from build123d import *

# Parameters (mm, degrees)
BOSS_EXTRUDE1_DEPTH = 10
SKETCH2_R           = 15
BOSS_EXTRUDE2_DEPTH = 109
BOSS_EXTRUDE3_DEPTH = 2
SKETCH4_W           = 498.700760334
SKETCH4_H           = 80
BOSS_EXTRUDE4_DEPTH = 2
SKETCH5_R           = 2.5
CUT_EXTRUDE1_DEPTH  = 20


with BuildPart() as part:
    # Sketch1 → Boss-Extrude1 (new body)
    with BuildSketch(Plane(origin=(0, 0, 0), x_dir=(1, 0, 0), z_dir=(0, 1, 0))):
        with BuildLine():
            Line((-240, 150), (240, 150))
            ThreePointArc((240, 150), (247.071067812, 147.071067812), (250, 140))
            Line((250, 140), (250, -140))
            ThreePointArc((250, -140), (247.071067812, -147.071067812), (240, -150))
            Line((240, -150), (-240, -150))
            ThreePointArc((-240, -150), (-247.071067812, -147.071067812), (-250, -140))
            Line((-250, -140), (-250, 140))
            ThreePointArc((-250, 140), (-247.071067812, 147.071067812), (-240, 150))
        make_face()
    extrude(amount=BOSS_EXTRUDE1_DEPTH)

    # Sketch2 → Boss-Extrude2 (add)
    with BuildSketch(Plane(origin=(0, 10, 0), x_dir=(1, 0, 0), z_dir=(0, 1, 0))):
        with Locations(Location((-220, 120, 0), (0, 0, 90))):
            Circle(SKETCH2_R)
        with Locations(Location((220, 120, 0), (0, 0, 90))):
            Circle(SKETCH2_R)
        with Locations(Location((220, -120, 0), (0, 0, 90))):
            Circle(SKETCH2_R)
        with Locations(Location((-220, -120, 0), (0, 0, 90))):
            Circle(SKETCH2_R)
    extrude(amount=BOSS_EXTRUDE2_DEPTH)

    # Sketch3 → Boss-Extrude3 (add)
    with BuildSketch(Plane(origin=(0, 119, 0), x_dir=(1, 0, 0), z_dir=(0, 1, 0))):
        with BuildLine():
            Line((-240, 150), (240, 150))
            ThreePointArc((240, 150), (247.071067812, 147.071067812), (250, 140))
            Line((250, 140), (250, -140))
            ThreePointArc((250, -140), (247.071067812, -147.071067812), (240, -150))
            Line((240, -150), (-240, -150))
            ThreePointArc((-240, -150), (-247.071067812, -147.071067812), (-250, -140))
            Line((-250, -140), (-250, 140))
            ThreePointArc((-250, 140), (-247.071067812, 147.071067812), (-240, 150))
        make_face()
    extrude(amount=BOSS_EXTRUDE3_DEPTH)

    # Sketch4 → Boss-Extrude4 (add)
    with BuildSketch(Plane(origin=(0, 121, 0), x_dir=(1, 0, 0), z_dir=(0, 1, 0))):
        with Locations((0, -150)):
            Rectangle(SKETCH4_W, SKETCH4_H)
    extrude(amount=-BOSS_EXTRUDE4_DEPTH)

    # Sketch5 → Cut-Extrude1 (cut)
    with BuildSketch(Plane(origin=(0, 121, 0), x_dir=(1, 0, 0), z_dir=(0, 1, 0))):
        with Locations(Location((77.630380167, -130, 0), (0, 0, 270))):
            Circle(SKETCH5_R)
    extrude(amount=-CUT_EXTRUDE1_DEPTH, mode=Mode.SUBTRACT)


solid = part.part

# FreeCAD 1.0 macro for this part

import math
import FreeCAD as App
import Part
import Sketcher
from FreeCAD import Vector
Q = App.Units.Quantity

doc = App.newDocument("Part")
body = doc.addObject("PartDesign::Body", "Body")

sketch1 = body.newObject("Sketcher::SketchObject", "Sketch")
sketch1.AttachmentSupport = (doc.getObject("XZ_Plane"), [""])
sketch1.MapMode = "FlatFace"
sketch1.addGeometry([
    Part.LineSegment(Vector(240, -150, 0), Vector(-240, -150, 0)),
    Part.ArcOfCircle(Part.Circle(Vector(-240, -140, 0), Vector(0, 0, 1), 10), math.radians(180), math.radians(270)),
    Part.LineSegment(Vector(-250, -140, 0), Vector(-250, 140, 0)),
    Part.ArcOfCircle(Part.Circle(Vector(-240, 140, 0), Vector(0, 0, 1), 10), math.radians(90), math.radians(180)),
    Part.LineSegment(Vector(-240, 150, 0), Vector(240, 150, 0)),
    Part.ArcOfCircle(Part.Circle(Vector(240, 140, 0), Vector(0, 0, 1), 10), math.radians(0), math.radians(90)),
    Part.LineSegment(Vector(250, 140, 0), Vector(250, -140, 0)),
    Part.ArcOfCircle(Part.Circle(Vector(240, -140, 0), Vector(0, 0, 1), 10), math.radians(-90), math.radians(0)),
], False)
sketch1.addConstraint([
    Sketcher.Constraint("Tangent", 0, 2, 1, 2),
    Sketcher.Constraint("Tangent", 1, 1, 2, 1),
    Sketcher.Constraint("Tangent", 2, 2, 3, 2),
    Sketcher.Constraint("Tangent", 3, 1, 4, 1),
    Sketcher.Constraint("Tangent", 4, 2, 5, 2),
    Sketcher.Constraint("Tangent", 5, 1, 6, 1),
    Sketcher.Constraint("Tangent", 6, 2, 7, 2),
    Sketcher.Constraint("Tangent", 7, 1, 0, 1),
    Sketcher.Constraint("Horizontal", 0),
    Sketcher.Constraint("Vertical", 2),
    Sketcher.Constraint("Horizontal", 4),
    Sketcher.Constraint("Vertical", 6),
    Sketcher.Constraint("Equal", 1, 3),
    Sketcher.Constraint("Equal", 3, 5),
    Sketcher.Constraint("Equal", 5, 7),
    Sketcher.Constraint("Symmetric", 1, 3, 5, 3, -1, 1),
    Sketcher.Constraint("Radius", 1, Q("10 mm")),
    Sketcher.Constraint("DistanceX", 0, 2, 0, 1, Q("480 mm")),
    Sketcher.Constraint("DistanceY", 2, 1, 2, 2, Q("280 mm")),
])
pad1 = body.newObject("PartDesign::Pad", "Pad")
pad1.Profile = sketch1
pad1.Length = 10
pad1.Reversed = True

sketch2 = body.newObject("Sketcher::SketchObject", "Sketch001")
sketch2.AttachmentSupport = (doc.getObject("XZ_Plane"), [""])
sketch2.MapMode = "FlatFace"
sketch2.AttachmentOffset = App.Placement(Vector(0, 0, -10), App.Rotation())
sketch2.addGeometry([
    Part.Circle(Vector(-220, -120, 0), Vector(0, 0, 1), 15),
    Part.Circle(Vector(220, -120, 0), Vector(0, 0, 1), 15),
    Part.Circle(Vector(220, 120, 0), Vector(0, 0, 1), 15),
    Part.Circle(Vector(-220, 120, 0), Vector(0, 0, 1), 15),
], False)
sketch2.addConstraint([
    Sketcher.Constraint("Equal", 0, 1),
    Sketcher.Constraint("Equal", 1, 2),
    Sketcher.Constraint("Equal", 2, 3),
    Sketcher.Constraint("Symmetric", 0, 3, 2, 3, -1, 1),
    Sketcher.Constraint("Symmetric", 1, 3, 3, 3, -1, 1),
    Sketcher.Constraint("Symmetric", 0, 3, 1, 3, -2),
    Sketcher.Constraint("Diameter", 0, Q("30 mm")),
    Sketcher.Constraint("DistanceX", 0, 3, -1, 1, Q("220 mm")),
    Sketcher.Constraint("DistanceY", 0, 3, -1, 1, Q("120 mm")),
])
pad2 = body.newObject("PartDesign::Pad", "Pad001")
pad2.Profile = sketch2
pad2.Length = 109
pad2.Reversed = True

sketch3 = body.newObject("Sketcher::SketchObject", "Sketch002")
sketch3.AttachmentSupport = (doc.getObject("XZ_Plane"), [""])
sketch3.MapMode = "FlatFace"
sketch3.AttachmentOffset = App.Placement(Vector(0, 0, -119), App.Rotation())
sketch3.addGeometry([
    Part.LineSegment(Vector(240, -150, 0), Vector(-240, -150, 0)),
    Part.ArcOfCircle(Part.Circle(Vector(-240, -140, 0), Vector(0, 0, 1), 10), math.radians(180), math.radians(270)),
    Part.LineSegment(Vector(-250, -140, 0), Vector(-250, 140, 0)),
    Part.ArcOfCircle(Part.Circle(Vector(-240, 140, 0), Vector(0, 0, 1), 10), math.radians(90), math.radians(180)),
    Part.LineSegment(Vector(-240, 150, 0), Vector(240, 150, 0)),
    Part.ArcOfCircle(Part.Circle(Vector(240, 140, 0), Vector(0, 0, 1), 10), math.radians(0), math.radians(90)),
    Part.LineSegment(Vector(250, 140, 0), Vector(250, -140, 0)),
    Part.ArcOfCircle(Part.Circle(Vector(240, -140, 0), Vector(0, 0, 1), 10), math.radians(-90), math.radians(0)),
], False)
sketch3.addConstraint([
    Sketcher.Constraint("Tangent", 0, 2, 1, 2),
    Sketcher.Constraint("Tangent", 1, 1, 2, 1),
    Sketcher.Constraint("Tangent", 2, 2, 3, 2),
    Sketcher.Constraint("Tangent", 3, 1, 4, 1),
    Sketcher.Constraint("Tangent", 4, 2, 5, 2),
    Sketcher.Constraint("Tangent", 5, 1, 6, 1),
    Sketcher.Constraint("Tangent", 6, 2, 7, 2),
    Sketcher.Constraint("Tangent", 7, 1, 0, 1),
    Sketcher.Constraint("Horizontal", 0),
    Sketcher.Constraint("Vertical", 2),
    Sketcher.Constraint("Horizontal", 4),
    Sketcher.Constraint("Vertical", 6),
    Sketcher.Constraint("Equal", 1, 3),
    Sketcher.Constraint("Equal", 3, 5),
    Sketcher.Constraint("Equal", 5, 7),
    Sketcher.Constraint("Symmetric", 1, 3, 5, 3, -1, 1),
    Sketcher.Constraint("Radius", 1, Q("10 mm")),
    Sketcher.Constraint("DistanceX", 0, 2, 0, 1, Q("480 mm")),
    Sketcher.Constraint("DistanceY", 2, 1, 2, 2, Q("280 mm")),
])
pad3 = body.newObject("PartDesign::Pad", "Pad002")
pad3.Profile = sketch3
pad3.Length = 2
pad3.Reversed = True

sketch4 = body.newObject("Sketcher::SketchObject", "Sketch003")
sketch4.AttachmentSupport = (doc.getObject("XZ_Plane"), [""])
sketch4.MapMode = "FlatFace"
sketch4.AttachmentOffset = App.Placement(Vector(0, 0, -121), App.Rotation())
sketch4.addGeometry([
    Part.LineSegment(Vector(-249, 110, 0), Vector(-249, 190, 0)),
    Part.LineSegment(Vector(-249, 190, 0), Vector(249, 190, 0)),
    Part.LineSegment(Vector(249, 190, 0), Vector(249, 110, 0)),
    Part.LineSegment(Vector(249, 110, 0), Vector(-249, 110, 0)),
], False)
sketch4.addConstraint([
    Sketcher.Constraint("Coincident", 0, 2, 1, 1),
    Sketcher.Constraint("Coincident", 1, 2, 2, 1),
    Sketcher.Constraint("Coincident", 2, 2, 3, 1),
    Sketcher.Constraint("Coincident", 3, 2, 0, 1),
    Sketcher.Constraint("Vertical", 0),
    Sketcher.Constraint("Horizontal", 1),
    Sketcher.Constraint("Vertical", 2),
    Sketcher.Constraint("Horizontal", 3),
    Sketcher.Constraint("DistanceY", 0, 1, 0, 2, Q("80 mm")),
    Sketcher.Constraint("DistanceY", -1, 1, 0, 2, Q("190 mm")),
    Sketcher.Constraint("DistanceX", 1, 1, 1, 2, Q("498.70076 mm")),
    Sketcher.Constraint("DistanceX", 0, 2, -1, 1, Q("249.35038 mm")),
])
pad4 = body.newObject("PartDesign::Pad", "Pad003")
pad4.Profile = sketch4
pad4.Length = 2

sketch5 = body.newObject("Sketcher::SketchObject", "Sketch004")
sketch5.AttachmentSupport = (doc.getObject("XZ_Plane"), [""])
sketch5.MapMode = "FlatFace"
sketch5.AttachmentOffset = App.Placement(Vector(0, 0, -121), App.Rotation())
sketch5.addGeometry(Part.Circle(Vector(77.6, 130, 0), Vector(0, 0, 1), 2.5), False)
sketch5.addConstraint([
    Sketcher.Constraint("Diameter", 0, Q("5 mm")),
    Sketcher.Constraint("DistanceY", -1, 1, 0, 3, Q("130 mm")),
    Sketcher.Constraint("DistanceX", -1, 1, 0, 3, Q("77.63038 mm")),
])
pocket1 = body.newObject("PartDesign::Pocket", "Pocket")
pocket1.Profile = sketch5
pocket1.Length = 20
pocket1.Reversed = True

doc.recompute()
